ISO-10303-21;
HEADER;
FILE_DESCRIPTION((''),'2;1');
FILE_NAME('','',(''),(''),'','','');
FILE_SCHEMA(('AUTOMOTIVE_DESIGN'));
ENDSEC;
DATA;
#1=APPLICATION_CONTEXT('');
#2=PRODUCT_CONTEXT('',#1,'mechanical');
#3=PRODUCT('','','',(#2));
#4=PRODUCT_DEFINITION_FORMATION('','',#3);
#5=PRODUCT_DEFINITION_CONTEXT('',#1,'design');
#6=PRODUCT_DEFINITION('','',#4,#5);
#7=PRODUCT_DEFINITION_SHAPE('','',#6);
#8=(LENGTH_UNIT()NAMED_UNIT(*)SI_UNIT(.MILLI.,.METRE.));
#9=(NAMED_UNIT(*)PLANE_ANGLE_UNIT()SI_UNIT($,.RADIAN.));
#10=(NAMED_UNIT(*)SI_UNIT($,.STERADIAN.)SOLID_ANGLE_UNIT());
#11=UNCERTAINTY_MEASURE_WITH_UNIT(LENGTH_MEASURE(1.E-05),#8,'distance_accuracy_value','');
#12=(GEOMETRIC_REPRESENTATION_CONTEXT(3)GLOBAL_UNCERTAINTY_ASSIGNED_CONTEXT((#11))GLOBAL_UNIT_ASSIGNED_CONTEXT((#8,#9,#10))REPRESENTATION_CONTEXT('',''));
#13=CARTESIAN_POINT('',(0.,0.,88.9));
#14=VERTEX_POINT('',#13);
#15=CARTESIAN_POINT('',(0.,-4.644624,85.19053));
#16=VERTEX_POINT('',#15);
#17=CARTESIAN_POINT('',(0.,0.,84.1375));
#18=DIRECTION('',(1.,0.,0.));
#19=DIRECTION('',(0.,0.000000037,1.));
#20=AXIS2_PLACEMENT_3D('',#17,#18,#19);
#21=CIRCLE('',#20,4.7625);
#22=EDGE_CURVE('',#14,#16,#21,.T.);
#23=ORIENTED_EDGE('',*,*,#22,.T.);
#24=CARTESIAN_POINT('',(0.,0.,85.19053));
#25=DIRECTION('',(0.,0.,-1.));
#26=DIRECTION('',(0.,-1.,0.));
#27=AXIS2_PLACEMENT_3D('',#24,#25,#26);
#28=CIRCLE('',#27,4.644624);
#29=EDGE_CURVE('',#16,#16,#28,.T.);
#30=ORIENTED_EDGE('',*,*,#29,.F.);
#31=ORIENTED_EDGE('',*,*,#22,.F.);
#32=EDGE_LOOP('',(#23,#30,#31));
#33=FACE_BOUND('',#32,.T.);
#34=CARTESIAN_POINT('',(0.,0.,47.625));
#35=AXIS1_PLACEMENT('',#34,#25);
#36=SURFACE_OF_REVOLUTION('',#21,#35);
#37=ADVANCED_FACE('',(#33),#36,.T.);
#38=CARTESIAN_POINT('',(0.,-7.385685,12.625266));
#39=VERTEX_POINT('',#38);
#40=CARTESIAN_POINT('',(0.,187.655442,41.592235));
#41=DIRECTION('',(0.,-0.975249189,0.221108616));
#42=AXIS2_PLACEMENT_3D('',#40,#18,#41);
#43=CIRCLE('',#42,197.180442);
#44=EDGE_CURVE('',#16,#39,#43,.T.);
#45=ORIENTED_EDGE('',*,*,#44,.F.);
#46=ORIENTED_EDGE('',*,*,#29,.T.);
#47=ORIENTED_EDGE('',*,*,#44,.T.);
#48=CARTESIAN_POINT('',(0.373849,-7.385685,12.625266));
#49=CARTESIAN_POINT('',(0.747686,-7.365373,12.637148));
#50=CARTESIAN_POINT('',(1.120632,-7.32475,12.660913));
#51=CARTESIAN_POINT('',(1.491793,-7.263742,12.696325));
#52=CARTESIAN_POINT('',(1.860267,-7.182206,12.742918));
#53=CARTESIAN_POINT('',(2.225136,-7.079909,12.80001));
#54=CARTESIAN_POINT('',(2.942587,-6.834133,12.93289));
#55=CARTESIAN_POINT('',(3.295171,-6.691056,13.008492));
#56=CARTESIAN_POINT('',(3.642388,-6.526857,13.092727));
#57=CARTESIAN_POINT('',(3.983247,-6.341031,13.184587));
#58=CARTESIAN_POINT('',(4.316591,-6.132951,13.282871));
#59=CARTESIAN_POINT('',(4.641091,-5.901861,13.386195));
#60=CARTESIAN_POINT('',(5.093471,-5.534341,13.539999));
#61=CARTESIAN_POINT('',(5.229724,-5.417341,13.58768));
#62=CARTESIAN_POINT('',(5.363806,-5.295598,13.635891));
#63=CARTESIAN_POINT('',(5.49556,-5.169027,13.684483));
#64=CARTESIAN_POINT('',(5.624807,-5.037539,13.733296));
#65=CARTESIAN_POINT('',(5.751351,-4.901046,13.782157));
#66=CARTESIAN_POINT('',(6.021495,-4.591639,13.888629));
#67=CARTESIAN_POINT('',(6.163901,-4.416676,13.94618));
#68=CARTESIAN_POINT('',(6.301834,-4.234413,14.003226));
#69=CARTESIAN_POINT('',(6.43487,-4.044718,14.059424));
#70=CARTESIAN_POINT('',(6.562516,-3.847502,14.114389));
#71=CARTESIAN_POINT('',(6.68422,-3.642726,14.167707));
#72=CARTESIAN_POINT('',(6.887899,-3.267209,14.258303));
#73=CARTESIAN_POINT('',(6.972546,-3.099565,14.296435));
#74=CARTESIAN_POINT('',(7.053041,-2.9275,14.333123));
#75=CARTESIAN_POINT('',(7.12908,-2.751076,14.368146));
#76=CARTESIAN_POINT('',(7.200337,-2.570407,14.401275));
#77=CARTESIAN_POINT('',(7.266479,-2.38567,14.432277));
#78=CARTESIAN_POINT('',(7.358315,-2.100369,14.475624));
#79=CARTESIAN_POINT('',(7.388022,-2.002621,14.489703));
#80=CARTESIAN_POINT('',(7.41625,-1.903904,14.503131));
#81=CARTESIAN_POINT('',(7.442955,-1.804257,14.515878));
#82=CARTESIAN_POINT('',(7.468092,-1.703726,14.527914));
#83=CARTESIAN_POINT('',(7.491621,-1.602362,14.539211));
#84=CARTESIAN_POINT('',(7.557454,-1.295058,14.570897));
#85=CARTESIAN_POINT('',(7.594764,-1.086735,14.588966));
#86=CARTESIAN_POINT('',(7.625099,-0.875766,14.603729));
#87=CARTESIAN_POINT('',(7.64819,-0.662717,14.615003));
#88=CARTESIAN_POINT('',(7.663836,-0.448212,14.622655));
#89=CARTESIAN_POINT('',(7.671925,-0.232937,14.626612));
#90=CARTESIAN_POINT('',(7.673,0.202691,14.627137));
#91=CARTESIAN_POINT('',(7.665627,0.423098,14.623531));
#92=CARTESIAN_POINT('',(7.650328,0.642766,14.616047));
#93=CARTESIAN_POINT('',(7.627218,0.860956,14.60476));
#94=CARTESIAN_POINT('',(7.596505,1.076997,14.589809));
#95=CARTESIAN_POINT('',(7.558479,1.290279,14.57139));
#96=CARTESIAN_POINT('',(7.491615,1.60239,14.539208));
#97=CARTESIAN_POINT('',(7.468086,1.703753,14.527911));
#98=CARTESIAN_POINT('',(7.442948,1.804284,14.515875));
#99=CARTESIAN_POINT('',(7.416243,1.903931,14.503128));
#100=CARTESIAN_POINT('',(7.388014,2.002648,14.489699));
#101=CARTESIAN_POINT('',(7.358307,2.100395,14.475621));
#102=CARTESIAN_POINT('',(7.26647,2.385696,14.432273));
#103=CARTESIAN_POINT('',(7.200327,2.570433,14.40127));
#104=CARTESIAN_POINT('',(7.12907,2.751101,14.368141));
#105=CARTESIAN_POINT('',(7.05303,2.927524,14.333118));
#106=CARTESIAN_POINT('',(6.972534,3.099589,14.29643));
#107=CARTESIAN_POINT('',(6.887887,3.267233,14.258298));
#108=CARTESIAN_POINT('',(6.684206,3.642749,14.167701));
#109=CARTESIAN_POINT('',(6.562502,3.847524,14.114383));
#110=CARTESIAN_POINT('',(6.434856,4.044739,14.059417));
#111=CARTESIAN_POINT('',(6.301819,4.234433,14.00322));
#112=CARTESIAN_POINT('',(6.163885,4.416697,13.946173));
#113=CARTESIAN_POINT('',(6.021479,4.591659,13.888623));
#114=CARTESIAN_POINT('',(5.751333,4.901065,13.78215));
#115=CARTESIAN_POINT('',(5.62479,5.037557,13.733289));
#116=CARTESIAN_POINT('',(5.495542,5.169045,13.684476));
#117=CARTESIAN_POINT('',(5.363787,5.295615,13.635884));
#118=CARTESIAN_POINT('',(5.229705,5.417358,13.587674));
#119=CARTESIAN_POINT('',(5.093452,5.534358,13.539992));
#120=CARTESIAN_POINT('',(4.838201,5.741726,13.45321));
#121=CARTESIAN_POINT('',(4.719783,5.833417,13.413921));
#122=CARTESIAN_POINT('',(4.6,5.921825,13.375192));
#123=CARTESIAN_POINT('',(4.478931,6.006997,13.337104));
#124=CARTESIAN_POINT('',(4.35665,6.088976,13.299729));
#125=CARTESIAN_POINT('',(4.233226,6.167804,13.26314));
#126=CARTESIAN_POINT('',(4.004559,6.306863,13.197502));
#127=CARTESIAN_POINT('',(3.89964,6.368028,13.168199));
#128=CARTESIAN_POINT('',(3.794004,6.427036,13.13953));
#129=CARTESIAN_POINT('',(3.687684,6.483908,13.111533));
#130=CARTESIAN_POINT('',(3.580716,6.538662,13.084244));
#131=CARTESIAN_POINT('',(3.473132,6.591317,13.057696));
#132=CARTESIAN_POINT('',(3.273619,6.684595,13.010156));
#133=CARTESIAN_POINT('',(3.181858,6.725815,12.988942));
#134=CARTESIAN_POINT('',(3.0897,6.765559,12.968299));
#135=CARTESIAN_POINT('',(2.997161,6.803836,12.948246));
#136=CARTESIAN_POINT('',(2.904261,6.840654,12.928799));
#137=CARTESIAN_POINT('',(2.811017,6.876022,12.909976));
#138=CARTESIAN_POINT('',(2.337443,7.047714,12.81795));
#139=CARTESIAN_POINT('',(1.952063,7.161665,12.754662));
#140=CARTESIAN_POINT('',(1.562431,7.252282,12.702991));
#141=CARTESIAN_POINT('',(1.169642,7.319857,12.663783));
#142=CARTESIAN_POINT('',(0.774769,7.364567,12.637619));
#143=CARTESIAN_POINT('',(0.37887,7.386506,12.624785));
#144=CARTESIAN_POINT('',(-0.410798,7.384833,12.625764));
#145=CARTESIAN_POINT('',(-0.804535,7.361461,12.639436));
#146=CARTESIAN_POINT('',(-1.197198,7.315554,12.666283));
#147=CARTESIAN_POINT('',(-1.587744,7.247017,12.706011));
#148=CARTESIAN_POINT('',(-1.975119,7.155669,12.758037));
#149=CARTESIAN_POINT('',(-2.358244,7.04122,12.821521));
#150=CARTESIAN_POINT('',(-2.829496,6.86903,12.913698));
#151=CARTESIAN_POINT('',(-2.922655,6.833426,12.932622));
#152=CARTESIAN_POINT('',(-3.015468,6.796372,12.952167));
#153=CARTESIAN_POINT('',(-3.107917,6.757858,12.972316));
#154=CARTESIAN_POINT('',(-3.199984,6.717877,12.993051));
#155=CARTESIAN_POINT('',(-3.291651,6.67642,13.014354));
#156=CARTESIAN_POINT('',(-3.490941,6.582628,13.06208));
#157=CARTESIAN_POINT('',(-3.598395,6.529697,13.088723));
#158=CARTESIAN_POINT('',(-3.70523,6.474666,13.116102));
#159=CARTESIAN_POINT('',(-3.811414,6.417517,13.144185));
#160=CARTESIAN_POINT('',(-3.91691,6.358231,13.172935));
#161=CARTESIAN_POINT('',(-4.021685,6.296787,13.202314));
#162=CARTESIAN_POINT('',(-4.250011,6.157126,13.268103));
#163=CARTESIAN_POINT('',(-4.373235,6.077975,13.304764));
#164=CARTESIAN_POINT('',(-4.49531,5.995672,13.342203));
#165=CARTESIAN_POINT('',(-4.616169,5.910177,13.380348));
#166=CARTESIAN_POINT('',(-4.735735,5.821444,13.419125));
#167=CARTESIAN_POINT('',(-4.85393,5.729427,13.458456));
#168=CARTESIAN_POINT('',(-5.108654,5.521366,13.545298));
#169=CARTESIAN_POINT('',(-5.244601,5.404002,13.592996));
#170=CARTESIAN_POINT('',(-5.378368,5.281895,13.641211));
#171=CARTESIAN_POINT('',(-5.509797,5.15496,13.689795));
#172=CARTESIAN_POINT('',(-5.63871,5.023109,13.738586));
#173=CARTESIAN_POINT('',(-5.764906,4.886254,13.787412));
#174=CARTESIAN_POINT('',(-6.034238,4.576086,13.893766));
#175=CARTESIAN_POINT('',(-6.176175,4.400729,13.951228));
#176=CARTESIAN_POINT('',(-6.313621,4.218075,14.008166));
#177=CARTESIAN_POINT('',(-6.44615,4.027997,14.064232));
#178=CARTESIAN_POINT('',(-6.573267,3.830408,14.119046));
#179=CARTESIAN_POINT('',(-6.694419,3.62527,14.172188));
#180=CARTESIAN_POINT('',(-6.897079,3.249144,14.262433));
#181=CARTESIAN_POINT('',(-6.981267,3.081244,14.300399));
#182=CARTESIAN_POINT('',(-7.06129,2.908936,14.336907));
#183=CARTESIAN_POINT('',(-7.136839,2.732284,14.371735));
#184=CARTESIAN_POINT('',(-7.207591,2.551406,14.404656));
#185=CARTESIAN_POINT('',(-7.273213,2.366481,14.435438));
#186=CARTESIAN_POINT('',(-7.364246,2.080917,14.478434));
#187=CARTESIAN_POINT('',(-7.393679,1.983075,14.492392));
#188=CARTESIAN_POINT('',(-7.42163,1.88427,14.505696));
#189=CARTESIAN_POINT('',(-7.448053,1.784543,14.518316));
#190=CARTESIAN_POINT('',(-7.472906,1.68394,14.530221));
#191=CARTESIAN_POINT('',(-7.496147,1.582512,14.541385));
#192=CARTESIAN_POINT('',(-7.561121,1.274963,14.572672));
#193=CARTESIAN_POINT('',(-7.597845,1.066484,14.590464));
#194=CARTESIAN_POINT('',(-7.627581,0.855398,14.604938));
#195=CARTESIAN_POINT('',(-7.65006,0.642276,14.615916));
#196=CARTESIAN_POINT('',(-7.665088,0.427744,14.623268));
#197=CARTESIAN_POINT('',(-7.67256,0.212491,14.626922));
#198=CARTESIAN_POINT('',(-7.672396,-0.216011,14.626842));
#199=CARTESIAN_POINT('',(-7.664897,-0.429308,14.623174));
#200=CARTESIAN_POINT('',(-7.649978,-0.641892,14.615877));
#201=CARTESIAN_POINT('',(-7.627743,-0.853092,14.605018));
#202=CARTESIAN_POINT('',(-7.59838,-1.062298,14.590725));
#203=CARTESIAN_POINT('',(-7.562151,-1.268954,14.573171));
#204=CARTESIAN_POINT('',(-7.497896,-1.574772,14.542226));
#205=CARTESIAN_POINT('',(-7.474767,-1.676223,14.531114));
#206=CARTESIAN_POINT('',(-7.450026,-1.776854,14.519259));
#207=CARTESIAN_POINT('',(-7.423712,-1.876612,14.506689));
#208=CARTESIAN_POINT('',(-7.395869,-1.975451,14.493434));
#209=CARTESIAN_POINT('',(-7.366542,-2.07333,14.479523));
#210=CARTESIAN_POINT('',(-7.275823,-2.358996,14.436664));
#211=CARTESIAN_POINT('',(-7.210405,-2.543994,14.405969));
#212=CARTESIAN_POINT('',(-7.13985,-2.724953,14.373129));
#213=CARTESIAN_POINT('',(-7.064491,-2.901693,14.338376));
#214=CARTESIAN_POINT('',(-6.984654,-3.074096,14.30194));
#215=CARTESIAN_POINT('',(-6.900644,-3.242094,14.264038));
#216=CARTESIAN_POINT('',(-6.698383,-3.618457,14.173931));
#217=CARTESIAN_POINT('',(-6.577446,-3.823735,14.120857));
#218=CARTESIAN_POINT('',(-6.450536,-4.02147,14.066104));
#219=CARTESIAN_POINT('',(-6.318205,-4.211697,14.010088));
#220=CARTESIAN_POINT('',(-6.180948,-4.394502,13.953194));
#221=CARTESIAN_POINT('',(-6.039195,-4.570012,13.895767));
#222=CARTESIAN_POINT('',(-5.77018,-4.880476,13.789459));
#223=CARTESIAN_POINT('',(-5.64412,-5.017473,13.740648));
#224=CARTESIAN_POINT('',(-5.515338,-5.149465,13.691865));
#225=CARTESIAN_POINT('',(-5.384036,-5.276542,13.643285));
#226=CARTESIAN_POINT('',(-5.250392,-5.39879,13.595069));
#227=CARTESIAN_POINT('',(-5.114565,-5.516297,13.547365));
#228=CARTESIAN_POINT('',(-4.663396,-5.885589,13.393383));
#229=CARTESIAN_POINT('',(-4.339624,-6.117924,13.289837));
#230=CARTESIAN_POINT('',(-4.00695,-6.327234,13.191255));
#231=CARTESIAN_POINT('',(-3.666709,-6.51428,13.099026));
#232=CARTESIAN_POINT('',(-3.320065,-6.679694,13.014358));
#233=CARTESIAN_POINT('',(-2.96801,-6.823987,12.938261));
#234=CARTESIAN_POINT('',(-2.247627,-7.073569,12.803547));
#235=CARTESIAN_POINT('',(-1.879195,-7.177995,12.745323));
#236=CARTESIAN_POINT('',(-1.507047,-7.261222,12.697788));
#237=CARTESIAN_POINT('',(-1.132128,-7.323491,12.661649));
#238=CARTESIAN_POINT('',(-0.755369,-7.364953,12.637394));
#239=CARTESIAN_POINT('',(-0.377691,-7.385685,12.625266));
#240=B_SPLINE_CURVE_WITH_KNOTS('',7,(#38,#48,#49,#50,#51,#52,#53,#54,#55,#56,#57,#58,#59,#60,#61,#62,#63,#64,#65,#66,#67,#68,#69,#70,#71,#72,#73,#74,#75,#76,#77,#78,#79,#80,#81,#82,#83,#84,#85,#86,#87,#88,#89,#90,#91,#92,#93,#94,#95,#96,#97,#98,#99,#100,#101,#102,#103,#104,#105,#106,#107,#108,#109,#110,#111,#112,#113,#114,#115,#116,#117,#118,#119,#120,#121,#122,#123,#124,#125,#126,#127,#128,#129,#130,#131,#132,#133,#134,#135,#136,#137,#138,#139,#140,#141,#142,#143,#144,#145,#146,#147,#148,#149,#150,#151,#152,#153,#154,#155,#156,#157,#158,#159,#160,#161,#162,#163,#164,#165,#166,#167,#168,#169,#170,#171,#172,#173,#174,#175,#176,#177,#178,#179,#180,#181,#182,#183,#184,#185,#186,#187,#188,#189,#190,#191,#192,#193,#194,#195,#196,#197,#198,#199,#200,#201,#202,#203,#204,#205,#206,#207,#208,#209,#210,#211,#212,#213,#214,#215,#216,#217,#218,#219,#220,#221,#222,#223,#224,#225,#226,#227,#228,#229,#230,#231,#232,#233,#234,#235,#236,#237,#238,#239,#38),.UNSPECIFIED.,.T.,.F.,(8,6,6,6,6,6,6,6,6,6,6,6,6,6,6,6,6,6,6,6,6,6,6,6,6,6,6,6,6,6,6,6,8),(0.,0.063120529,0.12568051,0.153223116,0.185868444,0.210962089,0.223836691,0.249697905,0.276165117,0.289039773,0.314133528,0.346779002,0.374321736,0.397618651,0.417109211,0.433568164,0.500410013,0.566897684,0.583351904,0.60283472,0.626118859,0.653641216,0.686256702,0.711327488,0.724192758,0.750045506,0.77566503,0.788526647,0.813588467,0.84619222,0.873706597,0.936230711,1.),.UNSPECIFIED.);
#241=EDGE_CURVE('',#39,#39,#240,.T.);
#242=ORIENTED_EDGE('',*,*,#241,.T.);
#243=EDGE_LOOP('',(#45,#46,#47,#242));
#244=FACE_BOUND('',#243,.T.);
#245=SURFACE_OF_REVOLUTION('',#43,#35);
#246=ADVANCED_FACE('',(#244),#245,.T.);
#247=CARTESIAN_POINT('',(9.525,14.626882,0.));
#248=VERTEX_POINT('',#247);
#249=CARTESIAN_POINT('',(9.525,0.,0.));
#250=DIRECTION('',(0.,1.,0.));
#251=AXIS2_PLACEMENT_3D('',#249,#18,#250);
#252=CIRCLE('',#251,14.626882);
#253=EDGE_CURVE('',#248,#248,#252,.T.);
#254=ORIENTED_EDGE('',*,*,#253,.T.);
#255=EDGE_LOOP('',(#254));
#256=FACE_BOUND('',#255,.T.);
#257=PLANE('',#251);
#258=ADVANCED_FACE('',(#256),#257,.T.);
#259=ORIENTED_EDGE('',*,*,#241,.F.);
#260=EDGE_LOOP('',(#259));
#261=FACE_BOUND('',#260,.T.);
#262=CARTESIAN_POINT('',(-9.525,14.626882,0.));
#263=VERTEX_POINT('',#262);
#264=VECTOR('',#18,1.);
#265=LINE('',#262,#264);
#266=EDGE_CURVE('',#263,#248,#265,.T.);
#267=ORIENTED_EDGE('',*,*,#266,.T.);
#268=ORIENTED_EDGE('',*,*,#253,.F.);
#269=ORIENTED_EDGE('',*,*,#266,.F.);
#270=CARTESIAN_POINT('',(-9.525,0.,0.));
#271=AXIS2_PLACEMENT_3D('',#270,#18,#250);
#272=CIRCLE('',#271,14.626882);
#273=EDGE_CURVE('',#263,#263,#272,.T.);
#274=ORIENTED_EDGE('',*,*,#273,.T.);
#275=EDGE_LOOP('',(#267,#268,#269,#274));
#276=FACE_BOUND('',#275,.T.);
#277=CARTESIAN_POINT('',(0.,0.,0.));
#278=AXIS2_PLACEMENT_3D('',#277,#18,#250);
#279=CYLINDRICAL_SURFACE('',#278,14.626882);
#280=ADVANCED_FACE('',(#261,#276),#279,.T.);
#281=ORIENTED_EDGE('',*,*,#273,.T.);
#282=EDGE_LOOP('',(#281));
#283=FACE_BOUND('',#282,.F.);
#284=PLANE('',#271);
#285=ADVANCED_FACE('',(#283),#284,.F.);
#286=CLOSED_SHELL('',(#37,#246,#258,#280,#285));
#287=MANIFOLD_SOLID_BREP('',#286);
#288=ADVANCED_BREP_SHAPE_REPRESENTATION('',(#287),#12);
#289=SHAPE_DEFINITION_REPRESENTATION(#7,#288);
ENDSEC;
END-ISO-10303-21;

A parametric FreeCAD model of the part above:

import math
import FreeCAD as App
import Part
import Sketcher
from FreeCAD import Vector
Q = App.Units.Quantity

doc = App.newDocument("Part")
body = doc.addObject("PartDesign::Body", "Body")

# Sketch on YZ plane
sketch1 = doc.addObject("Sketcher::SketchObject", "Sketch")
body.addObject(sketch1)
sketch1.AttachmentSupport = (doc.YZ_Plane, [""])
sketch1.MapMode = "FlatFace"
sketch1.addGeometry([
    Part.ArcOfCircle(Part.Circle(Vector(0, 84.1375, 0), Vector(0, 0, 1), 4.7625), math.radians(89.999998), math.radians(167.225846)),
    Part.ArcOfCircle(Part.Circle(Vector(187.655442, 41.592235, 0), Vector(0, 0, 1), 197.180442), math.radians(167.225844), math.radians(190.295846)),
    Part.LineSegment(Vector(-6.35, 6.35, 0), Vector(0, 6.35, 0)),
    Part.LineSegment(Vector(0, 6.35, 0), Vector(0, 88.9, 0)),
], False)
sketch1.addConstraint([
    Sketcher.Constraint("Tangent", 0, 2, 1, 1),
    Sketcher.Constraint("Coincident", 1, 2, 2, 1),
    Sketcher.Constraint("Coincident", 2, 2, 3, 1),
    Sketcher.Constraint("Coincident", 3, 2, 0, 1),
    Sketcher.Constraint("Horizontal", 2),
    Sketcher.Constraint("Vertical", 3),
    Sketcher.Constraint("PointOnObject", 0, 3, -2),
    Sketcher.Constraint("PointOnObject", 2, 2, -2),
    Sketcher.Constraint("Radius", 0, Q("0.1875 in")),
    Sketcher.Constraint("DistanceX", 2, 1, 2, 2, Q("0.25 in")),
    Sketcher.Constraint("DistanceY", 3, 1, 3, 2, Q("3.25 in")),
    Sketcher.Constraint("DistanceY", -1, 1, 3, 2, Q("3.5 in")),
    Sketcher.Constraint("Radius", 1, Q("197.180442 mm")),
])
revolution = doc.addObject("PartDesign::Revolution", "Revolution")
body.addObject(revolution)
revolution.Profile = sketch1
revolution.ReferenceAxis = (sketch1, ["V_Axis"])
revolution.Angle = 360

# Sketch on YZ plane
sketch2 = doc.addObject("Sketcher::SketchObject", "Sketch001")
body.addObject(sketch2)
sketch2.AttachmentSupport = (doc.YZ_Plane, [""])
sketch2.MapMode = "FlatFace"
sketch2.addGeometry(Part.Circle(Vector(0, 0, 0), Vector(0, 0, 1), 14.626882), False)
sketch2.addConstraint([
    Sketcher.Constraint("Coincident", 0, 3, -1, 1),
    Sketcher.Constraint("Diameter", 0, Q("29.253764 mm")),
])
pad1 = doc.addObject("PartDesign::Pad", "Pad")
body.addObject(pad1)
pad1.Profile = sketch2
pad1.Length = Q("0.75 in")
pad1.Midplane = True

doc.recompute()
